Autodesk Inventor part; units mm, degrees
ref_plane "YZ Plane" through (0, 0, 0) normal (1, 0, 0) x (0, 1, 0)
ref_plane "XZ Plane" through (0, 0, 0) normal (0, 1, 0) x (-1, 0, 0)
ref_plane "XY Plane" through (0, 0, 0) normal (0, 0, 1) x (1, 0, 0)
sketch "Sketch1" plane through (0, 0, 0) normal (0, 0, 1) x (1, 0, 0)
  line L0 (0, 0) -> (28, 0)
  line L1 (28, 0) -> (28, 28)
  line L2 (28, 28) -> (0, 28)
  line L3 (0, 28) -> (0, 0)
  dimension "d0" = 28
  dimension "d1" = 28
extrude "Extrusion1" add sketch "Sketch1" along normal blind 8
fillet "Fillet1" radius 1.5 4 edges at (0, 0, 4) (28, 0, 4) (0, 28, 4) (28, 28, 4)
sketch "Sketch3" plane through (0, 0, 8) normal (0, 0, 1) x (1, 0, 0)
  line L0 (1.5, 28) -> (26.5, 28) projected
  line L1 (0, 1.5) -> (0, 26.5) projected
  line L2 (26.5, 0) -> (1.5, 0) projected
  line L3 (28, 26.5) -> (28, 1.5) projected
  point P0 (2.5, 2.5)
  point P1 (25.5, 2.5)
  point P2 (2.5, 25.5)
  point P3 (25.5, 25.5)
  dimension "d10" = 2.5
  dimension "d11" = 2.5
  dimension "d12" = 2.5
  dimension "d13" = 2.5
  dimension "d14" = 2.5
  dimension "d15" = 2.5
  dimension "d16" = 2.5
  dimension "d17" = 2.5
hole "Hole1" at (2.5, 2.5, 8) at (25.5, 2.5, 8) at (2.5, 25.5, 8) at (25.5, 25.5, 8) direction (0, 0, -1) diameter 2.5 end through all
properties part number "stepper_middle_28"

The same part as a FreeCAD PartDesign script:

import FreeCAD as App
import Part
import Sketcher

V = App.Vector
Q = App.Units.Quantity


def edges_at(feature, points):
    """Names of the edges that pass closest to the given points."""
    edges = feature.Shape.Edges
    near = lambda p: min(range(len(edges)), key=lambda i: edges[i].distToShape(Part.Vertex(*p))[0])
    return sorted({f"Edge{near(p) + 1}" for p in points})

doc = App.newDocument("Part")
body = doc.addObject("PartDesign::Body", "Body")

# Sketch on XY plane
sketch1 = doc.addObject("Sketcher::SketchObject", "Sketch")
body.addObject(sketch1)
sketch1.AttachmentSupport = (doc.XY_Plane, [""])
sketch1.MapMode = "FlatFace"
sketch1.addGeometry(Part.LineSegment(V(0, 28, 0), V(0, 0, 0)), False)
sketch1.addGeometry(Part.LineSegment(V(0, 0, 0), V(28, 0, 0)), False)
sketch1.addGeometry(Part.LineSegment(V(28, 0, 0), V(28, 28, 0)), False)
sketch1.addGeometry(Part.LineSegment(V(28, 28, 0), V(0, 28, 0)), False)
sketch1.addConstraint(Sketcher.Constraint("Coincident", 0, 2, 1, 1))
sketch1.addConstraint(Sketcher.Constraint("Coincident", 1, 2, 2, 1))
sketch1.addConstraint(Sketcher.Constraint("Coincident", 2, 2, 3, 1))
sketch1.addConstraint(Sketcher.Constraint("Coincident", 3, 2, 0, 1))
sketch1.addConstraint(Sketcher.Constraint("Vertical", 0))
sketch1.addConstraint(Sketcher.Constraint("Horizontal", 1))
sketch1.addConstraint(Sketcher.Constraint("Vertical", 2))
sketch1.addConstraint(Sketcher.Constraint("Horizontal", 3))
sketch1.addConstraint(Sketcher.Constraint("Coincident", 0, 2, -1, 1))
sketch1.addConstraint(Sketcher.Constraint("Equal", 3, 0))
sketch1.addConstraint(Sketcher.Constraint("DistanceX", 1, 1, 1, 2, Q("28 mm")))
pad1 = doc.addObject("PartDesign::Pad", "Pad")
body.addObject(pad1)
pad1.Profile = sketch1
pad1.Length = 8
doc.recompute()

fillet = doc.addObject("PartDesign::Fillet", "Fillet")
body.addObject(fillet)
fillet.Base = (pad1, edges_at(pad1, [
    (0, 0, 4),
    (28, 0, 4),
    (0, 28, 4),
    (28, 28, 4),
]))
fillet.Radius = 1.5

# Sketch on XY plane
sketch2 = doc.addObject("Sketcher::SketchObject", "Sketch001")
body.addObject(sketch2)
sketch2.AttachmentSupport = (doc.XY_Plane, [""])
sketch2.MapMode = "FlatFace"
sketch2.AttachmentOffset = App.Placement(V(0, 0, 8), App.Rotation())
sketch2.addGeometry(Part.Circle(V(2.5, 2.5, 0), V(0, 0, 1), 1.2), False)
sketch2.addGeometry(Part.Circle(V(25.5, 2.5, 0), V(0, 0, 1), 1.2), False)
sketch2.addGeometry(Part.Circle(V(2.5, 25.5, 0), V(0, 0, 1), 1.2), False)
sketch2.addGeometry(Part.Circle(V(25.5, 25.5, 0), V(0, 0, 1), 1.2), False)
sketch2.addConstraint(Sketcher.Constraint("Equal", 0, 1))
sketch2.addConstraint(Sketcher.Constraint("Equal", 1, 2))
sketch2.addConstraint(Sketcher.Constraint("Equal", 2, 3))
sketch2.addConstraint(Sketcher.Constraint("Horizontal", 0, 3, 1, 3))
sketch2.addConstraint(Sketcher.Constraint("Horizontal", 2, 3, 3, 3))
sketch2.addConstraint(Sketcher.Constraint("Vertical", 0, 3, 2, 3))
sketch2.addConstraint(Sketcher.Constraint("Vertical", 1, 3, 3, 3))
sketch2.addConstraint(Sketcher.Constraint("Diameter", 0, Q("2.5 mm")))
sketch2.addConstraint(Sketcher.Constraint("DistanceX", 0, 3, 1, 3, Q("23 mm")))
sketch2.addConstraint(Sketcher.Constraint("DistanceY", 0, 3, 2, 3, Q("23 mm")))
sketch2.addConstraint(Sketcher.Constraint("DistanceX", -1, 1, 0, 3, Q("2.5 mm")))
sketch2.addConstraint(Sketcher.Constraint("DistanceY", -1, 1, 0, 3, Q("2.5 mm")))
doc.recompute()
hole = doc.addObject("PartDesign::Hole", "Hole")
body.addObject(hole)
hole.Profile = sketch2
hole.ThreadType = "None"
hole.Diameter = 2.5
hole.DepthType = "ThroughAll"

doc.recompute()
